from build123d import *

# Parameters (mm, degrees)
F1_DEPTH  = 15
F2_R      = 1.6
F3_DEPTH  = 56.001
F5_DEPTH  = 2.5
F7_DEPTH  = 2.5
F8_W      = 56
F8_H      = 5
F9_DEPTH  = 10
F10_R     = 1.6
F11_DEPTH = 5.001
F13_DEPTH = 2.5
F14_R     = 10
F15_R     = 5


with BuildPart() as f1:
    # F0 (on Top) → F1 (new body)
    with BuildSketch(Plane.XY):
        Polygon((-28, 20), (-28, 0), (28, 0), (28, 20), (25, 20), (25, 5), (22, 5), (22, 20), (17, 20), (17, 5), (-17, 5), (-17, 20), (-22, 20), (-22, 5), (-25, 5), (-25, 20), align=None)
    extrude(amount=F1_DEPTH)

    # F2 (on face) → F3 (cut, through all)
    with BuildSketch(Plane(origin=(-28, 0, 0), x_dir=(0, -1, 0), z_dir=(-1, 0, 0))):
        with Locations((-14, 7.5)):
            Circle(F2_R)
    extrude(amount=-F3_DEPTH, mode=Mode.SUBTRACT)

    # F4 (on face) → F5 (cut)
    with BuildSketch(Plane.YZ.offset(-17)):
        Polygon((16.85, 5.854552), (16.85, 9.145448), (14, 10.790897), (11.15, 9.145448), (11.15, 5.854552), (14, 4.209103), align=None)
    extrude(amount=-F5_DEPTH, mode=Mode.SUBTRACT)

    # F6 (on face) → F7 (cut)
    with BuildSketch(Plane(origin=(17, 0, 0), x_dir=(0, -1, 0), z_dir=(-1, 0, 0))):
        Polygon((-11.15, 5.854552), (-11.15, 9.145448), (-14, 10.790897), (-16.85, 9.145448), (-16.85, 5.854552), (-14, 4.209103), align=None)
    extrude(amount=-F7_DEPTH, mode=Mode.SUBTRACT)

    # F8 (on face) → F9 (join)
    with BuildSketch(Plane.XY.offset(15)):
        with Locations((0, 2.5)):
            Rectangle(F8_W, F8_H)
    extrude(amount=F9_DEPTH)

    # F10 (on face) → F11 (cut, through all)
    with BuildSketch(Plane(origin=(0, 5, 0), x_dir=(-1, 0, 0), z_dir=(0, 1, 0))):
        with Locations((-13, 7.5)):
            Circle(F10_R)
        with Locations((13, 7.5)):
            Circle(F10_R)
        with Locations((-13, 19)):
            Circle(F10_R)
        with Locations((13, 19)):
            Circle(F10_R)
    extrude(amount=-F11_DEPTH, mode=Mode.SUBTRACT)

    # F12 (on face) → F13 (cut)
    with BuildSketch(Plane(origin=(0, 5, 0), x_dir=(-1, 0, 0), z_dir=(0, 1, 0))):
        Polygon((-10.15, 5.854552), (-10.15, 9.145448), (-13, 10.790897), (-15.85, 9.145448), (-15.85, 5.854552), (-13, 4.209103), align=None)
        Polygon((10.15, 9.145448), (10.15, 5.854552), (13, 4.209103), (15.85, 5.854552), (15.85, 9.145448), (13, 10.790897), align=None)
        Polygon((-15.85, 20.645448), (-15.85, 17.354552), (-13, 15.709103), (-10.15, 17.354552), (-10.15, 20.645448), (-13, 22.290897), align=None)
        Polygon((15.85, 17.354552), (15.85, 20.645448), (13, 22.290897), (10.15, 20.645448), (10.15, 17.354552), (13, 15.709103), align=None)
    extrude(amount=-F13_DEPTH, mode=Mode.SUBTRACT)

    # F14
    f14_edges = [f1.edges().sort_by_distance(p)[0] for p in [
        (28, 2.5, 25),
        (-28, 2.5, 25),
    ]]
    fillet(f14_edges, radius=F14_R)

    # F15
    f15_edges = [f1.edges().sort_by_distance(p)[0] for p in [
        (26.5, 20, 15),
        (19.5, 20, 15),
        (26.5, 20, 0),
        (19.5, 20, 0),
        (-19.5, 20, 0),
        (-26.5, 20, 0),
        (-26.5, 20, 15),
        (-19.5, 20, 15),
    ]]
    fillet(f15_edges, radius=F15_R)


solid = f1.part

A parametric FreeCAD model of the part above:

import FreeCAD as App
import Part
import Sketcher
Q = App.Units.Quantity


def edges_at(feature, points):
    """Names of the edges that pass closest to the given points."""
    edges = feature.Shape.Edges
    near = lambda p: min(range(len(edges)), key=lambda i: edges[i].distToShape(Part.Vertex(*p))[0])
    return sorted({f"Edge{near(p) + 1}" for p in points})

doc = App.newDocument("Part")
body = doc.addObject("PartDesign::Body", "Body")

# Sketch on XY plane
sketch1 = body.newObject("Sketcher::SketchObject", "Sketch")
sketch1.AttachmentSupport = (doc.getObject("XY_Plane"), [""])
sketch1.MapMode = "FlatFace"
sketch1.addGeometry([
    Part.LineSegment(App.Vector(-28, 20, 0), App.Vector(-28, 0, 0)),  # 0
    Part.LineSegment(App.Vector(-28, 0, 0), App.Vector(28, 0, 0)),  # 1
    Part.LineSegment(App.Vector(28, 0, 0), App.Vector(28, 20, 0)),  # 2
    Part.LineSegment(App.Vector(28, 20, 0), App.Vector(25, 20, 0)),  # 3
    Part.LineSegment(App.Vector(25, 20, 0), App.Vector(25, 5, 0)),  # 4
    Part.LineSegment(App.Vector(25, 5, 0), App.Vector(22, 5, 0)),  # 5
    Part.LineSegment(App.Vector(22, 5, 0), App.Vector(22, 20, 0)),  # 6
    Part.LineSegment(App.Vector(22, 20, 0), App.Vector(17, 20, 0)),  # 7
    Part.LineSegment(App.Vector(17, 20, 0), App.Vector(17, 5, 0)),  # 8
    Part.LineSegment(App.Vector(17, 5, 0), App.Vector(-17, 5, 0)),  # 9
    Part.LineSegment(App.Vector(-17, 5, 0), App.Vector(-17, 20, 0)),  # 10
    Part.LineSegment(App.Vector(-17, 20, 0), App.Vector(-22, 20, 0)),  # 11
    Part.LineSegment(App.Vector(-22, 20, 0), App.Vector(-22, 5, 0)),  # 12
    Part.LineSegment(App.Vector(-22, 5, 0), App.Vector(-25, 5, 0)),  # 13
    Part.LineSegment(App.Vector(-25, 5, 0), App.Vector(-25, 20, 0)),  # 14
    Part.LineSegment(App.Vector(-25, 20, 0), App.Vector(-28, 20, 0)),  # 15
], False)
sketch1.addConstraint([
    Sketcher.Constraint("Coincident", 0, 2, 1, 1),
    Sketcher.Constraint("Coincident", 1, 2, 2, 1),
    Sketcher.Constraint("Coincident", 2, 2, 3, 1),
    Sketcher.Constraint("Coincident", 3, 2, 4, 1),
    Sketcher.Constraint("Coincident", 4, 2, 5, 1),
    Sketcher.Constraint("Coincident", 5, 2, 6, 1),
    Sketcher.Constraint("Coincident", 6, 2, 7, 1),
    Sketcher.Constraint("Coincident", 7, 2, 8, 1),
    Sketcher.Constraint("Coincident", 8, 2, 9, 1),
    Sketcher.Constraint("Coincident", 9, 2, 10, 1),
    Sketcher.Constraint("Coincident", 10, 2, 11, 1),
    Sketcher.Constraint("Coincident", 11, 2, 12, 1),
    Sketcher.Constraint("Coincident", 12, 2, 13, 1),
    Sketcher.Constraint("Coincident", 13, 2, 14, 1),
    Sketcher.Constraint("Coincident", 14, 2, 15, 1),
    Sketcher.Constraint("Coincident", 15, 2, 0, 1),
    Sketcher.Constraint("Vertical", 0),
    Sketcher.Constraint("Horizontal", 1),
    Sketcher.Constraint("Vertical", 2),
    Sketcher.Constraint("Horizontal", 3),
    Sketcher.Constraint("Vertical", 4),
    Sketcher.Constraint("Horizontal", 5),
    Sketcher.Constraint("Vertical", 6),
    Sketcher.Constraint("Horizontal", 7),
    Sketcher.Constraint("Vertical", 8),
    Sketcher.Constraint("Horizontal", 9),
    Sketcher.Constraint("Vertical", 10),
    Sketcher.Constraint("Horizontal", 11),
    Sketcher.Constraint("Vertical", 12),
    Sketcher.Constraint("Horizontal", 13),
    Sketcher.Constraint("Vertical", 14),
    Sketcher.Constraint("Horizontal", 15),
    Sketcher.Constraint("Symmetric", 0, 2, 1, 2, -1, 1),
    Sketcher.Constraint("Symmetric", 7, 2, 10, 2, -2),
    Sketcher.Constraint("Symmetric", 5, 2, 12, 2, -2),
    Sketcher.Constraint("Symmetric", 3, 2, 14, 2, -2),
    Sketcher.Constraint("Horizontal", 3, 2, 6, 2),
    Sketcher.Constraint("Horizontal", 5, 2, 8, 2),
    Sketcher.Constraint("Equal", 3, 5),
    Sketcher.Constraint("DistanceX", 1, 1, 1, 2, 56.0),
    Sketcher.Constraint("DistanceX", 3, 2, 3, 1, 3.0),
    Sketcher.Constraint("DistanceX", 7, 2, 7, 1, 5.0),
    Sketcher.Constraint("DistanceY", 0, 2, 0, 1, 20.0),
    Sketcher.Constraint("DistanceY", 4, 2, 4, 1, 15.0),
])
pad1 = body.newObject("PartDesign::Pad", "Pad")
pad1.Profile = sketch1
pad1.Length = 15

# Sketch on YZ plane
sketch2 = body.newObject("Sketcher::SketchObject", "Sketch001")
sketch2.AttachmentSupport = (doc.getObject("YZ_Plane"), [""])
sketch2.MapMode = "FlatFace"
sketch2.AttachmentOffset = App.Placement(App.Vector(0, 0, -28), App.Rotation())
sketch2.addGeometry(Part.Circle(App.Vector(14, 7.5, 0), App.Vector(0, 0, 1), 1.6), False)
sketch2.addConstraint([
    Sketcher.Constraint("Diameter", 0, 3.2),
    Sketcher.Constraint("DistanceX", -1, 1, 0, 3, 14.0),
    Sketcher.Constraint("DistanceY", -1, 1, 0, 3, 7.5),
])
pocket1 = body.newObject("PartDesign::Pocket", "Pocket")
pocket1.Profile = sketch2
pocket1.Type = "ThroughAll"
pocket1.Reversed = True

# Sketch on YZ plane
sketch3 = body.newObject("Sketcher::SketchObject", "Sketch002")
sketch3.AttachmentSupport = (doc.getObject("YZ_Plane"), [""])
sketch3.MapMode = "FlatFace"
sketch3.AttachmentOffset = App.Placement(App.Vector(0, 0, -17), App.Rotation())
sketch3.addGeometry([
    Part.LineSegment(App.Vector(16.85, 5.854552, 0), App.Vector(16.85, 9.145448, 0)),  # 0
    Part.LineSegment(App.Vector(16.85, 9.145448, 0), App.Vector(14, 10.790897, 0)),  # 1
    Part.LineSegment(App.Vector(14, 10.790897, 0), App.Vector(11.15, 9.145448, 0)),  # 2
    Part.LineSegment(App.Vector(11.15, 9.145448, 0), App.Vector(11.15, 5.854552, 0)),  # 3
    Part.LineSegment(App.Vector(11.15, 5.854552, 0), App.Vector(14, 4.209103, 0)),  # 4
    Part.LineSegment(App.Vector(14, 4.209103, 0), App.Vector(16.85, 5.854552, 0)),  # 5
], False)
sketch3.addConstraint([
    Sketcher.Constraint("Coincident", 0, 2, 1, 1),
    Sketcher.Constraint("Coincident", 1, 2, 2, 1),
    Sketcher.Constraint("Coincident", 2, 2, 3, 1),
    Sketcher.Constraint("Coincident", 3, 2, 4, 1),
    Sketcher.Constraint("Coincident", 4, 2, 5, 1),
    Sketcher.Constraint("Coincident", 5, 2, 0, 1),
    Sketcher.Constraint("Vertical", 0),
    Sketcher.Constraint("Vertical", 3),
    Sketcher.Constraint("Parallel", 1, 4),
    Sketcher.Constraint("Parallel", 2, 5),
    Sketcher.Constraint("Horizontal", 0, 2, 2, 2),
    Sketcher.Constraint("Horizontal", 3, 2, 5, 2),
    Sketcher.Constraint("Vertical", 1, 2, 4, 2),
    Sketcher.Constraint("Angle", 1, Q("149.999989 deg")),
    Sketcher.Constraint("DistanceX", -1, 1, 1, 2, 14.0),
    Sketcher.Constraint("DistanceX", 2, 2, 0, 2, 5.7),
    Sketcher.Constraint("DistanceY", 0, 1, 0, 2, 3.290896),
    Sketcher.Constraint("DistanceY", -1, 1, 0, 2, 9.145448),
])
pocket2 = body.newObject("PartDesign::Pocket", "Pocket001")
pocket2.Profile = sketch3
pocket2.Length = 2.5

# Sketch on YZ plane
sketch4 = body.newObject("Sketcher::SketchObject", "Sketch003")
sketch4.AttachmentSupport = (doc.getObject("YZ_Plane"), [""])
sketch4.MapMode = "FlatFace"
sketch4.AttachmentOffset = App.Placement(App.Vector(0, 0, 17), App.Rotation())
sketch4.addGeometry([
    Part.LineSegment(App.Vector(11.15, 5.854552, 0), App.Vector(11.15, 9.145448, 0)),  # 0
    Part.LineSegment(App.Vector(11.15, 9.145448, 0), App.Vector(14, 10.790897, 0)),  # 1
    Part.LineSegment(App.Vector(14, 10.790897, 0), App.Vector(16.85, 9.145448, 0)),  # 2
    Part.LineSegment(App.Vector(16.85, 9.145448, 0), App.Vector(16.85, 5.854552, 0)),  # 3
    Part.LineSegment(App.Vector(16.85, 5.854552, 0), App.Vector(14, 4.209103, 0)),  # 4
    Part.LineSegment(App.Vector(14, 4.209103, 0), App.Vector(11.15, 5.854552, 0)),  # 5
], False)
sketch4.addConstraint([
    Sketcher.Constraint("Coincident", 0, 2, 1, 1),
    Sketcher.Constraint("Coincident", 1, 2, 2, 1),
    Sketcher.Constraint("Coincident", 2, 2, 3, 1),
    Sketcher.Constraint("Coincident", 3, 2, 4, 1),
    Sketcher.Constraint("Coincident", 4, 2, 5, 1),
    Sketcher.Constraint("Coincident", 5, 2, 0, 1),
    Sketcher.Constraint("Vertical", 0),
    Sketcher.Constraint("Vertical", 3),
    Sketcher.Constraint("Parallel", 1, 4),
    Sketcher.Constraint("Parallel", 2, 5),
    Sketcher.Constraint("Horizontal", 0, 2, 2, 2),
    Sketcher.Constraint("Horizontal", 3, 2, 5, 2),
    Sketcher.Constraint("Vertical", 1, 2, 4, 2),
    Sketcher.Constraint("Angle", 1, Q("30.000011 deg")),
    Sketcher.Constraint("DistanceX", -1, 1, 1, 2, 14.0),
    Sketcher.Constraint("DistanceX", 0, 2, 2, 2, 5.7),
    Sketcher.Constraint("DistanceY", 0, 1, 0, 2, 3.290896),
    Sketcher.Constraint("DistanceY", -1, 1, 0, 2, 9.145448),
])
pocket3 = body.newObject("PartDesign::Pocket", "Pocket002")
pocket3.Profile = sketch4
pocket3.Length = 2.5
pocket3.Reversed = True

# Sketch on XY plane
sketch5 = body.newObject("Sketcher::SketchObject", "Sketch004")
sketch5.AttachmentSupport = (doc.getObject("XY_Plane"), [""])
sketch5.MapMode = "FlatFace"
sketch5.AttachmentOffset = App.Placement(App.Vector(0, 0, 15), App.Rotation())
sketch5.addGeometry([
    Part.LineSegment(App.Vector(-28, 5, 0), App.Vector(-28, 0, 0)),
    Part.LineSegment(App.Vector(-28, 0, 0), App.Vector(28, 0, 0)),
    Part.LineSegment(App.Vector(28, 0, 0), App.Vector(28, 5, 0)),
    Part.LineSegment(App.Vector(28, 5, 0), App.Vector(-28, 5, 0)),
], False)
sketch5.addConstraint([
    Sketcher.Constraint("Coincident", 0, 2, 1, 1),
    Sketcher.Constraint("Coincident", 1, 2, 2, 1),
    Sketcher.Constraint("Coincident", 2, 2, 3, 1),
    Sketcher.Constraint("Coincident", 3, 2, 0, 1),
    Sketcher.Constraint("Vertical", 0),
    Sketcher.Constraint("Horizontal", 1),
    Sketcher.Constraint("Vertical", 2),
    Sketcher.Constraint("Horizontal", 3),
    Sketcher.Constraint("Symmetric", 0, 2, 1, 2, -1, 1),
    Sketcher.Constraint("DistanceX", 1, 1, 1, 2, 56.0),
    Sketcher.Constraint("DistanceY", 0, 2, 0, 1, 5.0),
])
pad2 = body.newObject("PartDesign::Pad", "Pad001")
pad2.Profile = sketch5
pad2.Length = 10

# Sketch on XZ plane
sketch6 = body.newObject("Sketcher::SketchObject", "Sketch005")
sketch6.AttachmentSupport = (doc.getObject("XZ_Plane"), [""])
sketch6.MapMode = "FlatFace"
sketch6.AttachmentOffset = App.Placement(App.Vector(0, 0, -5), App.Rotation())
sketch6.addGeometry([
    Part.Circle(App.Vector(13, 7.5, 0), App.Vector(0, 0, 1), 1.6),
    Part.Circle(App.Vector(-13, 7.5, 0), App.Vector(0, 0, 1), 1.6),
    Part.Circle(App.Vector(13, 19, 0), App.Vector(0, 0, 1), 1.6),
    Part.Circle(App.Vector(-13, 19, 0), App.Vector(0, 0, 1), 1.6),
], False)
sketch6.addConstraint([
    Sketcher.Constraint("Equal", 0, 1),
    Sketcher.Constraint("Equal", 1, 2),
    Sketcher.Constraint("Equal", 2, 3),
    Sketcher.Constraint("Symmetric", 0, 3, 1, 3, -2),
    Sketcher.Constraint("Symmetric", 2, 3, 3, 3, -2),
    Sketcher.Constraint("Vertical", 0, 3, 2, 3),
    Sketcher.Constraint("Diameter", 0, 3.2),
    Sketcher.Constraint("DistanceX", -1, 1, 0, 3, 13.0),
    Sketcher.Constraint("DistanceY", -1, 1, 2, 3, 19.0),
    Sketcher.Constraint("DistanceY", -1, 1, 0, 3, 7.5),
])
pocket4 = body.newObject("PartDesign::Pocket", "Pocket003")
pocket4.Profile = sketch6
pocket4.Type = "ThroughAll"
pocket4.Reversed = True

# Sketch on XZ plane
sketch7 = body.newObject("Sketcher::SketchObject", "Sketch006")
sketch7.AttachmentSupport = (doc.getObject("XZ_Plane"), [""])
sketch7.MapMode = "FlatFace"
sketch7.AttachmentOffset = App.Placement(App.Vector(0, 0, -5), App.Rotation())
sketch7.addGeometry([
    Part.LineSegment(App.Vector(10.15, 5.854552, 0), App.Vector(10.15, 9.145448, 0)),  # 0
    Part.LineSegment(App.Vector(10.15, 9.145448, 0), App.Vector(13, 10.790897, 0)),  # 1
    Part.LineSegment(App.Vector(13, 10.790897, 0), App.Vector(15.85, 9.145448, 0)),  # 2
    Part.LineSegment(App.Vector(15.85, 9.145448, 0), App.Vector(15.85, 5.854552, 0)),  # 3
    Part.LineSegment(App.Vector(15.85, 5.854552, 0), App.Vector(13, 4.209103, 0)),  # 4
    Part.LineSegment(App.Vector(13, 4.209103, 0), App.Vector(10.15, 5.854552, 0)),  # 5
    Part.LineSegment(App.Vector(-10.15, 9.145448, 0), App.Vector(-10.15, 5.854552, 0)),  # 6
    Part.LineSegment(App.Vector(-10.15, 5.854552, 0), App.Vector(-13, 4.209103, 0)),  # 7
    Part.LineSegment(App.Vector(-13, 4.209103, 0), App.Vector(-15.85, 5.854552, 0)),  # 8
    Part.LineSegment(App.Vector(-15.85, 5.854552, 0), App.Vector(-15.85, 9.145448, 0)),  # 9
    Part.LineSegment(App.Vector(-15.85, 9.145448, 0), App.Vector(-13, 10.790897, 0)),  # 10
    Part.LineSegment(App.Vector(-13, 10.790897, 0), App.Vector(-10.15, 9.145448, 0)),  # 11
    Part.LineSegment(App.Vector(15.85, 20.645448, 0), App.Vector(15.85, 17.354552, 0)),  # 12
    Part.LineSegment(App.Vector(15.85, 17.354552, 0), App.Vector(13, 15.709103, 0)),  # 13
    Part.LineSegment(App.Vector(13, 15.709103, 0), App.Vector(10.15, 17.354552, 0)),  # 14
    Part.LineSegment(App.Vector(10.15, 17.354552, 0), App.Vector(10.15, 20.645448, 0)),  # 15
    Part.LineSegment(App.Vector(10.15, 20.645448, 0), App.Vector(13, 22.290897, 0)),  # 16
    Part.LineSegment(App.Vector(13, 22.290897, 0), App.Vector(15.85, 20.645448, 0)),  # 17
    Part.LineSegment(App.Vector(-15.85, 17.354552, 0), App.Vector(-15.85, 20.645448, 0)),  # 18
    Part.LineSegment(App.Vector(-15.85, 20.645448, 0), App.Vector(-13, 22.290897, 0)),  # 19
    Part.LineSegment(App.Vector(-13, 22.290897, 0), App.Vector(-10.15, 20.645448, 0)),  # 20
    Part.LineSegment(App.Vector(-10.15, 20.645448, 0), App.Vector(-10.15, 17.354552, 0)),  # 21
    Part.LineSegment(App.Vector(-10.15, 17.354552, 0), App.Vector(-13, 15.709103, 0)),  # 22
    Part.LineSegment(App.Vector(-13, 15.709103, 0), App.Vector(-15.85, 17.354552, 0)),  # 23
], False)
sketch7.addConstraint([
    Sketcher.Constraint("Coincident", 0, 2, 1, 1),
    Sketcher.Constraint("Coincident", 1, 2, 2, 1),
    Sketcher.Constraint("Coincident", 2, 2, 3, 1),
    Sketcher.Constraint("Coincident", 3, 2, 4, 1),
    Sketcher.Constraint("Coincident", 4, 2, 5, 1),
    Sketcher.Constraint("Coincident", 5, 2, 0, 1),
    Sketcher.Constraint("Coincident", 6, 2, 7, 1),
    Sketcher.Constraint("Coincident", 7, 2, 8, 1),
    Sketcher.Constraint("Coincident", 8, 2, 9, 1),
    Sketcher.Constraint("Coincident", 9, 2, 10, 1),
    Sketcher.Constraint("Coincident", 10, 2, 11, 1),
    Sketcher.Constraint("Coincident", 11, 2, 6, 1),
    Sketcher.Constraint("Coincident", 12, 2, 13, 1),
    Sketcher.Constraint("Coincident", 13, 2, 14, 1),
    Sketcher.Constraint("Coincident", 14, 2, 15, 1),
    Sketcher.Constraint("Coincident", 15, 2, 16, 1),
    Sketcher.Constraint("Coincident", 16, 2, 17, 1),
    Sketcher.Constraint("Coincident", 17, 2, 12, 1),
    Sketcher.Constraint("Coincident", 18, 2, 19, 1),
    Sketcher.Constraint("Coincident", 19, 2, 20, 1),
    Sketcher.Constraint("Coincident", 20, 2, 21, 1),
    Sketcher.Constraint("Coincident", 21, 2, 22, 1),
    Sketcher.Constraint("Coincident", 22, 2, 23, 1),
    Sketcher.Constraint("Coincident", 23, 2, 18, 1),
    Sketcher.Constraint("Vertical", 0),
    Sketcher.Constraint("Vertical", 3),
    Sketcher.Constraint("Vertical", 6),
    Sketcher.Constraint("Vertical", 9),
    Sketcher.Constraint("Vertical", 12),
    Sketcher.Constraint("Vertical", 15),
    Sketcher.Constraint("Vertical", 18),
    Sketcher.Constraint("Vertical", 21),
    Sketcher.Constraint("Symmetric", 5, 2, 6, 2, -2),
    Sketcher.Constraint("Symmetric", 4, 2, 7, 2, -2),
    Sketcher.Constraint("Symmetric", 3, 2, 8, 2, -2),
    Sketcher.Constraint("Symmetric", 1, 2, 10, 2, -2),
    Sketcher.Constraint("Symmetric", 17, 2, 18, 2, -2),
    Sketcher.Constraint("Symmetric", 16, 2, 19, 2, -2),
    Sketcher.Constraint("Symmetric", 15, 2, 20, 2, -2),
    Sketcher.Constraint("Symmetric", 13, 2, 22, 2, -2),
    Sketcher.Constraint("Parallel", 1, 4),
    Sketcher.Constraint("Parallel", 2, 5),
    Sketcher.Constraint("Parallel", 4, 7),
    Sketcher.Constraint("Parallel", 7, 10),
    Sketcher.Constraint("Parallel", 8, 11),
    Sketcher.Constraint("Parallel", 10, 13),
    Sketcher.Constraint("Parallel", 11, 14),
    Sketcher.Constraint("Parallel", 13, 16),
    Sketcher.Constraint("Parallel", 14, 17),
    Sketcher.Constraint("Parallel", 19, 22),
    Sketcher.Constraint("Parallel", 20, 23),
    Sketcher.Constraint("Horizontal", 0, 2, 2, 2),
    Sketcher.Constraint("Horizontal", 3, 2, 5, 2),
    Sketcher.Constraint("Horizontal", 12, 2, 14, 2),
    Sketcher.Constraint("Horizontal", 15, 2, 17, 2),
    Sketcher.Constraint("Vertical", 3, 2, 12, 2),
    Sketcher.Constraint("Vertical", 4, 2, 13, 2),
    Sketcher.Constraint("Equal", 9, 12),
    Sketcher.Constraint("Angle", 1, Q("30.000011 deg")),
    Sketcher.Constraint("DistanceX", -1, 1, 1, 2, 13.0),
    Sketcher.Constraint("DistanceX", 0, 2, 2, 2, 5.7),
    Sketcher.Constraint("DistanceY", 3, 2, 12, 2, 11.5),
    Sketcher.Constraint("DistanceY", 0, 1, 0, 2, 3.290896),
    Sketcher.Constraint("DistanceY", -1, 1, 0, 2, 9.145448),
])
pocket5 = body.newObject("PartDesign::Pocket", "Pocket004")
pocket5.Profile = sketch7
pocket5.Length = 2.5
pocket5.Reversed = True
doc.recompute()

fillet = body.newObject("PartDesign::Fillet", "Fillet")
fillet.Base = (pocket5, edges_at(pocket5, [(28, 2.5, 25), (-28, 2.5, 25)]))
fillet.Radius = 10
doc.recompute()

fillet2 = body.newObject("PartDesign::Fillet", "Fillet001")
fillet2.Base = (fillet, edges_at(fillet, [
    (26.5, 20, 15),
    (19.5, 20, 15),
    (26.5, 20, 0),
    (19.5, 20, 0),
    (-19.5, 20, 0),
    (-26.5, 20, 0),
    (-26.5, 20, 15),
    (-19.5, 20, 15),
]))
fillet2.Radius = 5

doc.recompute()
